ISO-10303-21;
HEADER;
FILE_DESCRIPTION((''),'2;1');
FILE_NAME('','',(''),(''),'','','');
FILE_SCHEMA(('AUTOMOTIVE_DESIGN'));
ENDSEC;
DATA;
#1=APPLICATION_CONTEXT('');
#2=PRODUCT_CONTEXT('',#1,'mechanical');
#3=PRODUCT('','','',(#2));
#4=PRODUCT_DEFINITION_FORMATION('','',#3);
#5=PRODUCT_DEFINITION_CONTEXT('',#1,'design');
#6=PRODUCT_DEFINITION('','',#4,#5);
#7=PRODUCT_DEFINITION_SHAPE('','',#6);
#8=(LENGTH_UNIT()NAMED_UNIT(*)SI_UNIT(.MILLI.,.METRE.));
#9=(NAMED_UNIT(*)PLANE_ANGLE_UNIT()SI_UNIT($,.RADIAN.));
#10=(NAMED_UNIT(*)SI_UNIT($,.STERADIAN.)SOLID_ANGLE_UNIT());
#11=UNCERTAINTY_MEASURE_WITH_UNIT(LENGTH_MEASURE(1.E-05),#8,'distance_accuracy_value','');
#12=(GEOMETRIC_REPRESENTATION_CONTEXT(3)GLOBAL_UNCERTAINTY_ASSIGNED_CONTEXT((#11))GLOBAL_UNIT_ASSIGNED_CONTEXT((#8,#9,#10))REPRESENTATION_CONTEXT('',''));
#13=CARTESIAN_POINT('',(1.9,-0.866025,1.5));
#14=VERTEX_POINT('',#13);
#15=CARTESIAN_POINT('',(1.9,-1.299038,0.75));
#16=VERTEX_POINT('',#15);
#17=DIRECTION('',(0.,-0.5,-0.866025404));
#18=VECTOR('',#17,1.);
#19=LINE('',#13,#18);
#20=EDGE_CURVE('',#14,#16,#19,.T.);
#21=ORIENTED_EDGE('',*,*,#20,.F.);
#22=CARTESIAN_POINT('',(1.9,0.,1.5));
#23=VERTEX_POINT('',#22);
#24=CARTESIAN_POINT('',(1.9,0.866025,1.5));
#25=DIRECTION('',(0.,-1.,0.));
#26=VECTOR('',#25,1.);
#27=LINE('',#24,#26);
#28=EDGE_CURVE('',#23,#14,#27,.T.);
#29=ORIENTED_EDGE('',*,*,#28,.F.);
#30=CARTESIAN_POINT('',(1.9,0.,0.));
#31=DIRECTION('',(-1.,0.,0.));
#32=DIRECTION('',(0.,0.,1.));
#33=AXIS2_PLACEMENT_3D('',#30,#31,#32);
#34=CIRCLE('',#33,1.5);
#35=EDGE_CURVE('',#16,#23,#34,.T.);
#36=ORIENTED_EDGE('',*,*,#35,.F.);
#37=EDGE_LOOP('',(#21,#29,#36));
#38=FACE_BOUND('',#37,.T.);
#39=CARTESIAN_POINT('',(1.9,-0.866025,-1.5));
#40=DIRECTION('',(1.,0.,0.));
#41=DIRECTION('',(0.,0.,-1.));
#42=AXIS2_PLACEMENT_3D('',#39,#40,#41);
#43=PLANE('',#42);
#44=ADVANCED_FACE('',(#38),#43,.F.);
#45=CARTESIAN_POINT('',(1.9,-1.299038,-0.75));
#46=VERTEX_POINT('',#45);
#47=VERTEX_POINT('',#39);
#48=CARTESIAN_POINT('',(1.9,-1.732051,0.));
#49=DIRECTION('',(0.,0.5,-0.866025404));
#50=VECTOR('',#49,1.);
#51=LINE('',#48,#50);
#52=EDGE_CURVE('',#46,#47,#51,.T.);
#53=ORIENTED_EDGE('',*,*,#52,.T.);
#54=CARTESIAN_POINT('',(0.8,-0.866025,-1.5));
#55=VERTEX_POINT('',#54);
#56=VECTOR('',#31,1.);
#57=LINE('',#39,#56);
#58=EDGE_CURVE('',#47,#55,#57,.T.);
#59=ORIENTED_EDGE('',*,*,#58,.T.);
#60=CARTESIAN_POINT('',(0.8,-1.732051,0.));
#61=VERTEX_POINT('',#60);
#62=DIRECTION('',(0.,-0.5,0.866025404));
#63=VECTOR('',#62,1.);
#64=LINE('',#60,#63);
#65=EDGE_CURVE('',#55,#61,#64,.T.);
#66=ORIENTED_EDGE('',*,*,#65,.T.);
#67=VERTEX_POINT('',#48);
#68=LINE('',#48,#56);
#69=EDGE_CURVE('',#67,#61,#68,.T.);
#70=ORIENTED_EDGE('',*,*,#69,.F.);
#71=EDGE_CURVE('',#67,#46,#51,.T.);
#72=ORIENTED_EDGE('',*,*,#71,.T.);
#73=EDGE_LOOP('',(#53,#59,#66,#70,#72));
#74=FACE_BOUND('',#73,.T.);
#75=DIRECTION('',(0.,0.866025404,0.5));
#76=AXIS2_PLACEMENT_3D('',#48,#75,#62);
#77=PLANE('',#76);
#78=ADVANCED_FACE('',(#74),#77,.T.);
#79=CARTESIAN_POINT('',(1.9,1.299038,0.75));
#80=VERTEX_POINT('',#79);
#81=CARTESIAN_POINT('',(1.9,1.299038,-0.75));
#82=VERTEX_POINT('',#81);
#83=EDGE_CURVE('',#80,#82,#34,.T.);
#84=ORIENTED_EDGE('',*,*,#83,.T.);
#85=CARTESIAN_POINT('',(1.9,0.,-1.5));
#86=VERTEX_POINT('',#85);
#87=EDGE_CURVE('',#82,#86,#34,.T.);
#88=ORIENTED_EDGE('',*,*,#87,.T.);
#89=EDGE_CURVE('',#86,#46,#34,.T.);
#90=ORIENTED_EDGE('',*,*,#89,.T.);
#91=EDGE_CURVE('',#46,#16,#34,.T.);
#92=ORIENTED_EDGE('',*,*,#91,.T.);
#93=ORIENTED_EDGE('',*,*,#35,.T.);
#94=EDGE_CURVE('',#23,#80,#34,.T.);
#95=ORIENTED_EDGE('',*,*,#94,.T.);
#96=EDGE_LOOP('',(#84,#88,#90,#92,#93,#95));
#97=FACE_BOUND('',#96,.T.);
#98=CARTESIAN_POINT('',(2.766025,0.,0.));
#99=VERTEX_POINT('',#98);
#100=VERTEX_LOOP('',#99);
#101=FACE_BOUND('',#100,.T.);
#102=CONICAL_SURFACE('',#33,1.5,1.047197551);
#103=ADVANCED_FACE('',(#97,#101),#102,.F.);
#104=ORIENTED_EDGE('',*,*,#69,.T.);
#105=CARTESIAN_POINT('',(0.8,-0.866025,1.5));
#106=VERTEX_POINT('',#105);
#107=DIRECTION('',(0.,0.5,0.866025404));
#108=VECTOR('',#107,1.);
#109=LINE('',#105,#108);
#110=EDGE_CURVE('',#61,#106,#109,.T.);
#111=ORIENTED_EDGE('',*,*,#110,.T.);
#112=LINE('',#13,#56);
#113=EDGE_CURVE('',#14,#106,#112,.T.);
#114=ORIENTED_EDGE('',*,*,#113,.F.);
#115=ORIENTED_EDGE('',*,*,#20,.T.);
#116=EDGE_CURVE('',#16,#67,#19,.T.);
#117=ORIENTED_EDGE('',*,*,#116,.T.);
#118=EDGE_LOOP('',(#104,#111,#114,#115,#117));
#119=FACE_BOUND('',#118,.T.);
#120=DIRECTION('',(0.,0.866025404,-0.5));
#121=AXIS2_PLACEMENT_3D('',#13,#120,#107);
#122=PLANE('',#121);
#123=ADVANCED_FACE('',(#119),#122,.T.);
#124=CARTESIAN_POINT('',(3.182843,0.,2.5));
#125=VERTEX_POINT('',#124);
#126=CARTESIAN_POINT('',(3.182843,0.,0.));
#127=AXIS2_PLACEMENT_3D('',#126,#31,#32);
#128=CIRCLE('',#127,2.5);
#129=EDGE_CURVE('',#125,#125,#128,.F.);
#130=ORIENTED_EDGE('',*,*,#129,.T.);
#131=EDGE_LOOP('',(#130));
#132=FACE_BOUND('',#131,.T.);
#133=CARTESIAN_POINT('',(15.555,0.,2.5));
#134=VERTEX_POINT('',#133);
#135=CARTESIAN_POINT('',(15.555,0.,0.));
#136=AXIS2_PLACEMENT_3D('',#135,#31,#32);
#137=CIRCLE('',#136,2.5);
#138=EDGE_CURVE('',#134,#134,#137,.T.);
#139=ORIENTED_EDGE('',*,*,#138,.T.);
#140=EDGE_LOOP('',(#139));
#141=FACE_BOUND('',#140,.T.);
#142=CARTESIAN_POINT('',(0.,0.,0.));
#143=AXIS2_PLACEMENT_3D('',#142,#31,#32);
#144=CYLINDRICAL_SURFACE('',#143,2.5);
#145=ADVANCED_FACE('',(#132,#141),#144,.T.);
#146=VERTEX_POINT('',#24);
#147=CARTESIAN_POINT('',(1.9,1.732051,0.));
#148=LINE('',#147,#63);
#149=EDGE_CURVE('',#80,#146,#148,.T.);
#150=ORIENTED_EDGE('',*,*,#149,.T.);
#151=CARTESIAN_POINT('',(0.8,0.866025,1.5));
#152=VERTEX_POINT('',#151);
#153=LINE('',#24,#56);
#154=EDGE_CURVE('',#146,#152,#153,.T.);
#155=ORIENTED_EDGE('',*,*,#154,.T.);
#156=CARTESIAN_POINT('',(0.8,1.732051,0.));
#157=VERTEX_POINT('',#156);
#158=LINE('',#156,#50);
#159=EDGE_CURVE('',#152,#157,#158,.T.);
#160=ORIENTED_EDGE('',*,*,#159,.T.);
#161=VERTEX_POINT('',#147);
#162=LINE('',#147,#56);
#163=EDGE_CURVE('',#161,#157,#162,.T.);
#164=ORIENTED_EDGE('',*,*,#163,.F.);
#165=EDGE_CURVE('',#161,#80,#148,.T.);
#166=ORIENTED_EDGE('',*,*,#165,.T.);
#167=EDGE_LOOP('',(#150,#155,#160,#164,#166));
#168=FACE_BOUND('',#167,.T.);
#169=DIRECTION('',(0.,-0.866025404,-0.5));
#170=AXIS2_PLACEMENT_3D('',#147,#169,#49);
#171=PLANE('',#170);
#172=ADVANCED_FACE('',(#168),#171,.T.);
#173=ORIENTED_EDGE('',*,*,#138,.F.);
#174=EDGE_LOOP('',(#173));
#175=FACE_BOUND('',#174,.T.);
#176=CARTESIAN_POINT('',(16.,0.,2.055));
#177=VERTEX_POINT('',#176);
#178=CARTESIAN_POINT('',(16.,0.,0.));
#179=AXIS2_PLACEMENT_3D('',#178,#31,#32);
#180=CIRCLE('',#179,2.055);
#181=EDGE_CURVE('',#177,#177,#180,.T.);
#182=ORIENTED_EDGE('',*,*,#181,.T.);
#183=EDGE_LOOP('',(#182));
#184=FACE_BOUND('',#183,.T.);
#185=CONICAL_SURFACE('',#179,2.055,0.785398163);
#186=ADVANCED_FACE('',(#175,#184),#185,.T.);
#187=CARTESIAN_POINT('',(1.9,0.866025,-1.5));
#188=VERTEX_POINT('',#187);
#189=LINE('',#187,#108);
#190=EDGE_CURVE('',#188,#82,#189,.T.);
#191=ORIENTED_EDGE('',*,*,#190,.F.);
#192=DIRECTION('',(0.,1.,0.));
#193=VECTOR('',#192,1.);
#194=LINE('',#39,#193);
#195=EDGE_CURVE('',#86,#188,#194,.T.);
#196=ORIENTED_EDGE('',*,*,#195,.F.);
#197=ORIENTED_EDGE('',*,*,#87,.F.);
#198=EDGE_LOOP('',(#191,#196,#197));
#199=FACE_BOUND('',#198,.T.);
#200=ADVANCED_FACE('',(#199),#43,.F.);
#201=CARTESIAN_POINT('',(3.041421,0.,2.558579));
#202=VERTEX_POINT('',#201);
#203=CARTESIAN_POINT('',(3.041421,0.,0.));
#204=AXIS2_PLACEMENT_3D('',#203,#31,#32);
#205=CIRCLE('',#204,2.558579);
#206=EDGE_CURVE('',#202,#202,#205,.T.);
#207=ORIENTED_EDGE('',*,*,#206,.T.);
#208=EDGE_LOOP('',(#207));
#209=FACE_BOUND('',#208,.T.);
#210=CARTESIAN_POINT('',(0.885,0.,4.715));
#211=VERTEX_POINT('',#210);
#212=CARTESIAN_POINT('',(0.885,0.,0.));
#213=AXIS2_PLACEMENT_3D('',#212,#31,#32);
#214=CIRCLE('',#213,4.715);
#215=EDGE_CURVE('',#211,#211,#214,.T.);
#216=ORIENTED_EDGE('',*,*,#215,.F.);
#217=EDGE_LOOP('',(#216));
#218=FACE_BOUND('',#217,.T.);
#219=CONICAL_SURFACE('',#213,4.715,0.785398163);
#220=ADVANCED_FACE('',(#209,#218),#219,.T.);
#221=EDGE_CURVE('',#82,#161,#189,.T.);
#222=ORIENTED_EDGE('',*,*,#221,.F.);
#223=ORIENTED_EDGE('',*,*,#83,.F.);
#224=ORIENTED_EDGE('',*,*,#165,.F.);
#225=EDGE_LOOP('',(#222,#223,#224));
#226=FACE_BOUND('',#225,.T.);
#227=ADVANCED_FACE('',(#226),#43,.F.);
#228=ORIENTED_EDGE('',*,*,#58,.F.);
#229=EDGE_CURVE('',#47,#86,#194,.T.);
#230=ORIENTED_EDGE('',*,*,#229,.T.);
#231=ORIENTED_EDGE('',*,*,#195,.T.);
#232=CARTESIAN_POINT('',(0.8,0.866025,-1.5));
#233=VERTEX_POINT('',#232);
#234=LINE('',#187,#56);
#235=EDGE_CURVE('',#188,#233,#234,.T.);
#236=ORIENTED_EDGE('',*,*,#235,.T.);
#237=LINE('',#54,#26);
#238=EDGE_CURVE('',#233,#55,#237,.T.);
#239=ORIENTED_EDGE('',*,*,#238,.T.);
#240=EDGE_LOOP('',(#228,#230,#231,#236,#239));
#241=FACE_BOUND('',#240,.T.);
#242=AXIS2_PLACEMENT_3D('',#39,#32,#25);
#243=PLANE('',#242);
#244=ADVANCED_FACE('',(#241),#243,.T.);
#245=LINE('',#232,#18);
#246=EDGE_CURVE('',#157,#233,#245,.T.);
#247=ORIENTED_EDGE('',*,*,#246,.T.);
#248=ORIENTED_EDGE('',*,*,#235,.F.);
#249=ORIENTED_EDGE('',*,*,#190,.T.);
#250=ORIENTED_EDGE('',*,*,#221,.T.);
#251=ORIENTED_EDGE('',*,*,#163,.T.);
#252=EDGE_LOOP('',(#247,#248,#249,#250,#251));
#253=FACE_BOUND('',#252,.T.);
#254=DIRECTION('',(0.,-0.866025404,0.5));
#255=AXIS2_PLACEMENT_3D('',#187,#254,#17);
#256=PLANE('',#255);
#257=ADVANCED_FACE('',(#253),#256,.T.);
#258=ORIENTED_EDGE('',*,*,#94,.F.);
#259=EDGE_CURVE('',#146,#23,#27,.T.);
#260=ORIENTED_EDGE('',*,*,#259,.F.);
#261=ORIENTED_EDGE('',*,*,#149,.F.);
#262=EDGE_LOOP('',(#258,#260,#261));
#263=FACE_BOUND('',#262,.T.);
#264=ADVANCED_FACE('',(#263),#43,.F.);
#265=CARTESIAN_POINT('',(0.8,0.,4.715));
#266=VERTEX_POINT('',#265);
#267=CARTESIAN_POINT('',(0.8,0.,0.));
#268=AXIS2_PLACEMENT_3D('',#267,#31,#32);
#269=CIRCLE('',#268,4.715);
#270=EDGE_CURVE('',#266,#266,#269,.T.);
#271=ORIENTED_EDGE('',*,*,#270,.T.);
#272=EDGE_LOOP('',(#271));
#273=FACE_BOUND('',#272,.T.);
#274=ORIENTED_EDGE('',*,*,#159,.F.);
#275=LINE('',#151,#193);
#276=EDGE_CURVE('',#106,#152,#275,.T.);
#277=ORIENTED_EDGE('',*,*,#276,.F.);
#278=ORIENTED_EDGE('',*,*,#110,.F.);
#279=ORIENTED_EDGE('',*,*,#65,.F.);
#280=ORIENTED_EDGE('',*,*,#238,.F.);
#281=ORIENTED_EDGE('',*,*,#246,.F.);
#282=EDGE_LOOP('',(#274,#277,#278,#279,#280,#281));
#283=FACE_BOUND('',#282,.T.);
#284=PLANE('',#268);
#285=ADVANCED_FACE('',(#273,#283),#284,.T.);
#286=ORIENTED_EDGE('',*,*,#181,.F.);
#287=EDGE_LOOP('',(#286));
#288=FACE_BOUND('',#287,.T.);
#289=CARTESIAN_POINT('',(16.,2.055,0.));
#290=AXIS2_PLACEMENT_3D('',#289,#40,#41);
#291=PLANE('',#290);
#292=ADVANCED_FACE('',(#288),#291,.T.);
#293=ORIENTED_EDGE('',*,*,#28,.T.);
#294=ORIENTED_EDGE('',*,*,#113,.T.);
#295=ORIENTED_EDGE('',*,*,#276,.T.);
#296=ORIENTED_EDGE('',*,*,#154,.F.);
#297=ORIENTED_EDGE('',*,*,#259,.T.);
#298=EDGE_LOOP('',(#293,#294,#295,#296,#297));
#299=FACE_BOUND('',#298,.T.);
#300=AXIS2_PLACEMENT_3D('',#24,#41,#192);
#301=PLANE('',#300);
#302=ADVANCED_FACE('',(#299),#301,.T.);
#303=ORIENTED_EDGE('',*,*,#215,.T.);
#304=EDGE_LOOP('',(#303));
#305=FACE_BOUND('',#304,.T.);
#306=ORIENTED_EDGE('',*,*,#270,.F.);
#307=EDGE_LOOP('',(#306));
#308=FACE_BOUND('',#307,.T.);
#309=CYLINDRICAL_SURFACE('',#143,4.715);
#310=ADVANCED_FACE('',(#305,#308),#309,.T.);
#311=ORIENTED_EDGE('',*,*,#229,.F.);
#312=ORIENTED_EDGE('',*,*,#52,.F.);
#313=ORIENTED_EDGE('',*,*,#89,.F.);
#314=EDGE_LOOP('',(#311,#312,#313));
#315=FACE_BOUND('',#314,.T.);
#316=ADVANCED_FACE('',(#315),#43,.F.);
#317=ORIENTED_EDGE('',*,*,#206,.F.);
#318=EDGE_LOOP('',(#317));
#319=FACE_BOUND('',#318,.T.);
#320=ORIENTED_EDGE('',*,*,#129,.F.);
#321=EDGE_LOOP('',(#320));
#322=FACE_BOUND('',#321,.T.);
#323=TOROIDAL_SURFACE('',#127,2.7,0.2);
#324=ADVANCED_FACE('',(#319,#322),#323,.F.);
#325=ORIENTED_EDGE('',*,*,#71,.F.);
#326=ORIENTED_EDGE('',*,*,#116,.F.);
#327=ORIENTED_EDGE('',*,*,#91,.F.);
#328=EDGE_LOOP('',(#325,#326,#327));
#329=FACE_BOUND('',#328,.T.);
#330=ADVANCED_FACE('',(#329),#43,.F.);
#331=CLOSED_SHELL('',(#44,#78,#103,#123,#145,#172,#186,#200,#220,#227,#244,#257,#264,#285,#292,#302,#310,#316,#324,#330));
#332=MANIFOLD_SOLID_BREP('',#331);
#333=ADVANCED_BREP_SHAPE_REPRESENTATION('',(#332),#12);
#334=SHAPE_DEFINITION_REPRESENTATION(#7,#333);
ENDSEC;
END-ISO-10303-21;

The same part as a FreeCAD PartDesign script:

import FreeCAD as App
import Part
import Sketcher
from FreeCAD import Vector
Q = App.Units.Quantity


def edges_at(feature, points):
    """Names of the edges that pass closest to the given points."""
    edges = feature.Shape.Edges
    near = lambda p: min(range(len(edges)), key=lambda i: edges[i].distToShape(Part.Vertex(*p))[0])
    return sorted({f"Edge{near(p) + 1}" for p in points})

doc = App.newDocument("Part")
params = doc.addObject("Spreadsheet::Sheet", "Params")
for row, (alias, value) in enumerate([
    ("sketch1_width", "16 mm"),
    ("revolution_angle", "360 deg"),
    ("fillet_radius", "0.2 mm"),
    ("sketch2_width", "1.9 mm"),
    ("sketch2_height", "1.5 mm"),
    ("groove_angle", "360 deg"),
    ("pocket1_length", "1.9 mm"),
    ("sketch4_diameter", "9.43 mm"),
    ("pocket2_length", "0.8 mm"),
], start=1):
    params.set(f"A{row}", alias)
    params.set(f"B{row}", "=" + value)
    params.setAlias(f"B{row}", alias)

body = doc.addObject("PartDesign::Body", "Body")

sketch1 = body.newObject("Sketcher::SketchObject", "Sketch")
sketch1.AttachmentSupport = (doc.getObject("XY_Plane"), [""])
sketch1.MapMode = "FlatFace"
sketch1.addGeometry([
    Part.LineSegment(Vector(0, 4.7, 0), Vector(0, 0, 0)),
    Part.LineSegment(Vector(0, 0, 0), Vector(16, 0, 0)),
    Part.LineSegment(Vector(16, 0, 0), Vector(16, 2.1, 0)),
    Part.LineSegment(Vector(16, 2.1, 0), Vector(15.6, 2.5, 0)),
    Part.LineSegment(Vector(15.6, 2.5, 0), Vector(3.1, 2.5, 0)),
    Part.LineSegment(Vector(3.1, 2.5, 0), Vector(0.9, 4.7, 0)),
    Part.LineSegment(Vector(0.9, 4.7, 0), Vector(0, 4.7, 0)),
], False)
sketch1.addConstraint([
    Sketcher.Constraint("Coincident", 0, 2, 1, 1),
    Sketcher.Constraint("Coincident", 1, 2, 2, 1),
    Sketcher.Constraint("Coincident", 2, 2, 3, 1),
    Sketcher.Constraint("Coincident", 3, 2, 4, 1),
    Sketcher.Constraint("Coincident", 4, 2, 5, 1),
    Sketcher.Constraint("Coincident", 5, 2, 6, 1),
    Sketcher.Constraint("Coincident", 6, 2, 0, 1),
    Sketcher.Constraint("Vertical", 0),
    Sketcher.Constraint("Horizontal", 1),
    Sketcher.Constraint("Vertical", 2),
    Sketcher.Constraint("Horizontal", 4),
    Sketcher.Constraint("Horizontal", 6),
    Sketcher.Constraint("Coincident", 0, 2, -1, 1),
    Sketcher.Constraint("Parallel", 3, 5),
    Sketcher.Constraint("DistanceX", 1, 1, 1, 2, Q("16 mm")),
    Sketcher.Constraint("Angle", 3, Q("135 deg")),
    Sketcher.Constraint("DistanceY", -1, 1, 3, 2, Q("2.5 mm")),
    Sketcher.Constraint("DistanceX", -1, 1, 4, 2, Q("3.1 mm")),
    Sketcher.Constraint("DistanceX", 4, 2, 4, 1, Q("12.455 mm")),
    Sketcher.Constraint("DistanceX", 6, 2, 6, 1, Q("0.885 mm")),
])
sketch1.setExpression("Constraints[14]", "Params.sketch1_width")
revolution = body.newObject("PartDesign::Revolution", "Revolution")
revolution.Profile = sketch1
revolution.ReferenceAxis = (sketch1, ["H_Axis"])
revolution.setExpression("Angle", "Params.revolution_angle")
doc.recompute()

fillet = body.newObject("PartDesign::Fillet", "Fillet")
fillet.Base = (revolution, edges_at(revolution, [(3.1, 0, -2.5)]))
fillet.setExpression("Radius", "Params.fillet_radius")

sketch2 = body.newObject("Sketcher::SketchObject", "Sketch001")
sketch2.AttachmentSupport = (doc.getObject("XY_Plane"), [""])
sketch2.MapMode = "FlatFace"
sketch2.addGeometry([
    Part.LineSegment(Vector(1.9, 1.5, 0), Vector(0, 1.5, 0)),
    Part.LineSegment(Vector(0, 1.5, 0), Vector(0, 0, 0)),
    Part.LineSegment(Vector(0, 0, 0), Vector(2.8, 0, 0)),
    Part.LineSegment(Vector(2.8, 0, 0), Vector(1.9, 1.5, 0)),
], False)
sketch2.addConstraint([
    Sketcher.Constraint("Coincident", 0, 2, 1, 1),
    Sketcher.Constraint("Coincident", 1, 2, 2, 1),
    Sketcher.Constraint("Coincident", 2, 2, 3, 1),
    Sketcher.Constraint("Coincident", 3, 2, 0, 1),
    Sketcher.Constraint("Horizontal", 0),
    Sketcher.Constraint("Vertical", 1),
    Sketcher.Constraint("Horizontal", 2),
    Sketcher.Constraint("Coincident", 1, 2, -1, 1),
    Sketcher.Constraint("Angle", 3, Q("120 deg")),
    Sketcher.Constraint("DistanceX", 0, 2, 0, 1, Q("1.9 mm")),
    Sketcher.Constraint("DistanceY", 1, 2, 1, 1, Q("1.5 mm")),
])
sketch2.setExpression("Constraints[9]", "Params.sketch2_width")
sketch2.setExpression("Constraints[10]", "Params.sketch2_height")
groove = body.newObject("PartDesign::Groove", "Groove")
groove.Profile = sketch2
groove.ReferenceAxis = (sketch2, ["H_Axis"])
groove.setExpression("Angle", "Params.groove_angle")

sketch3 = body.newObject("Sketcher::SketchObject", "Sketch002")
sketch3.AttachmentSupport = (doc.getObject("YZ_Plane"), [""])
sketch3.MapMode = "FlatFace"
sketch3.addGeometry([
    Part.LineSegment(Vector(0.9, -1.5, 0), Vector(-0.9, -1.5, 0)),
    Part.LineSegment(Vector(-0.9, -1.5, 0), Vector(-1.7, 0, 0)),
    Part.LineSegment(Vector(-1.7, 0, 0), Vector(-0.9, 1.5, 0)),
    Part.LineSegment(Vector(-0.9, 1.5, 0), Vector(0.9, 1.5, 0)),
    Part.LineSegment(Vector(0.9, 1.5, 0), Vector(1.7, 0, 0)),
    Part.LineSegment(Vector(1.7, 0, 0), Vector(0.9, -1.5, 0)),
], False)
sketch3.addConstraint([
    Sketcher.Constraint("Coincident", 0, 2, 1, 1),
    Sketcher.Constraint("Coincident", 1, 2, 2, 1),
    Sketcher.Constraint("Coincident", 2, 2, 3, 1),
    Sketcher.Constraint("Coincident", 3, 2, 4, 1),
    Sketcher.Constraint("Coincident", 4, 2, 5, 1),
    Sketcher.Constraint("Coincident", 5, 2, 0, 1),
    Sketcher.Constraint("Horizontal", 0),
    Sketcher.Constraint("Horizontal", 3),
    Sketcher.Constraint("Symmetric", 0, 2, 3, 2, -1, 1),
    Sketcher.Constraint("Symmetric", 1, 2, 4, 2, -1, 1),
    Sketcher.Constraint("PointOnObject", 1, 2, -1),
    Sketcher.Constraint("Parallel", 2, 5),
    Sketcher.Constraint("Vertical", 0, 2, 2, 2),
    Sketcher.Constraint("Angle", 1, Q("120 deg")),
    Sketcher.Constraint("DistanceY", 0, 2, 2, 2, Q("3 mm")),
    Sketcher.Constraint("DistanceX", 0, 2, 0, 1, Q("1.732051 mm")),
])
pocket1 = body.newObject("PartDesign::Pocket", "Pocket")
pocket1.Profile = sketch3
pocket1.setExpression("Length", "Params.pocket1_length")
pocket1.Reversed = True

sketch4 = body.newObject("Sketcher::SketchObject", "Sketch003")
sketch4.AttachmentSupport = (doc.getObject("YZ_Plane"), [""])
sketch4.MapMode = "FlatFace"
sketch4.AttachmentOffset = App.Placement(Vector(0, 0, 0.8), App.Rotation())
sketch4.addGeometry(Part.Circle(Vector(0, 0, 0), Vector(0, 0, 1), 4.7), False)
sketch4.addConstraint([
    Sketcher.Constraint("Coincident", 0, 3, -1, 1),
    Sketcher.Constraint("Diameter", 0, Q("9.43 mm")),
])
sketch4.setExpression("Constraints[1]", "Params.sketch4_diameter")
pocket2 = body.newObject("PartDesign::Pocket", "Pocket001")
pocket2.Profile = sketch4
pocket2.setExpression("Length", "Params.pocket2_length")

doc.recompute()
